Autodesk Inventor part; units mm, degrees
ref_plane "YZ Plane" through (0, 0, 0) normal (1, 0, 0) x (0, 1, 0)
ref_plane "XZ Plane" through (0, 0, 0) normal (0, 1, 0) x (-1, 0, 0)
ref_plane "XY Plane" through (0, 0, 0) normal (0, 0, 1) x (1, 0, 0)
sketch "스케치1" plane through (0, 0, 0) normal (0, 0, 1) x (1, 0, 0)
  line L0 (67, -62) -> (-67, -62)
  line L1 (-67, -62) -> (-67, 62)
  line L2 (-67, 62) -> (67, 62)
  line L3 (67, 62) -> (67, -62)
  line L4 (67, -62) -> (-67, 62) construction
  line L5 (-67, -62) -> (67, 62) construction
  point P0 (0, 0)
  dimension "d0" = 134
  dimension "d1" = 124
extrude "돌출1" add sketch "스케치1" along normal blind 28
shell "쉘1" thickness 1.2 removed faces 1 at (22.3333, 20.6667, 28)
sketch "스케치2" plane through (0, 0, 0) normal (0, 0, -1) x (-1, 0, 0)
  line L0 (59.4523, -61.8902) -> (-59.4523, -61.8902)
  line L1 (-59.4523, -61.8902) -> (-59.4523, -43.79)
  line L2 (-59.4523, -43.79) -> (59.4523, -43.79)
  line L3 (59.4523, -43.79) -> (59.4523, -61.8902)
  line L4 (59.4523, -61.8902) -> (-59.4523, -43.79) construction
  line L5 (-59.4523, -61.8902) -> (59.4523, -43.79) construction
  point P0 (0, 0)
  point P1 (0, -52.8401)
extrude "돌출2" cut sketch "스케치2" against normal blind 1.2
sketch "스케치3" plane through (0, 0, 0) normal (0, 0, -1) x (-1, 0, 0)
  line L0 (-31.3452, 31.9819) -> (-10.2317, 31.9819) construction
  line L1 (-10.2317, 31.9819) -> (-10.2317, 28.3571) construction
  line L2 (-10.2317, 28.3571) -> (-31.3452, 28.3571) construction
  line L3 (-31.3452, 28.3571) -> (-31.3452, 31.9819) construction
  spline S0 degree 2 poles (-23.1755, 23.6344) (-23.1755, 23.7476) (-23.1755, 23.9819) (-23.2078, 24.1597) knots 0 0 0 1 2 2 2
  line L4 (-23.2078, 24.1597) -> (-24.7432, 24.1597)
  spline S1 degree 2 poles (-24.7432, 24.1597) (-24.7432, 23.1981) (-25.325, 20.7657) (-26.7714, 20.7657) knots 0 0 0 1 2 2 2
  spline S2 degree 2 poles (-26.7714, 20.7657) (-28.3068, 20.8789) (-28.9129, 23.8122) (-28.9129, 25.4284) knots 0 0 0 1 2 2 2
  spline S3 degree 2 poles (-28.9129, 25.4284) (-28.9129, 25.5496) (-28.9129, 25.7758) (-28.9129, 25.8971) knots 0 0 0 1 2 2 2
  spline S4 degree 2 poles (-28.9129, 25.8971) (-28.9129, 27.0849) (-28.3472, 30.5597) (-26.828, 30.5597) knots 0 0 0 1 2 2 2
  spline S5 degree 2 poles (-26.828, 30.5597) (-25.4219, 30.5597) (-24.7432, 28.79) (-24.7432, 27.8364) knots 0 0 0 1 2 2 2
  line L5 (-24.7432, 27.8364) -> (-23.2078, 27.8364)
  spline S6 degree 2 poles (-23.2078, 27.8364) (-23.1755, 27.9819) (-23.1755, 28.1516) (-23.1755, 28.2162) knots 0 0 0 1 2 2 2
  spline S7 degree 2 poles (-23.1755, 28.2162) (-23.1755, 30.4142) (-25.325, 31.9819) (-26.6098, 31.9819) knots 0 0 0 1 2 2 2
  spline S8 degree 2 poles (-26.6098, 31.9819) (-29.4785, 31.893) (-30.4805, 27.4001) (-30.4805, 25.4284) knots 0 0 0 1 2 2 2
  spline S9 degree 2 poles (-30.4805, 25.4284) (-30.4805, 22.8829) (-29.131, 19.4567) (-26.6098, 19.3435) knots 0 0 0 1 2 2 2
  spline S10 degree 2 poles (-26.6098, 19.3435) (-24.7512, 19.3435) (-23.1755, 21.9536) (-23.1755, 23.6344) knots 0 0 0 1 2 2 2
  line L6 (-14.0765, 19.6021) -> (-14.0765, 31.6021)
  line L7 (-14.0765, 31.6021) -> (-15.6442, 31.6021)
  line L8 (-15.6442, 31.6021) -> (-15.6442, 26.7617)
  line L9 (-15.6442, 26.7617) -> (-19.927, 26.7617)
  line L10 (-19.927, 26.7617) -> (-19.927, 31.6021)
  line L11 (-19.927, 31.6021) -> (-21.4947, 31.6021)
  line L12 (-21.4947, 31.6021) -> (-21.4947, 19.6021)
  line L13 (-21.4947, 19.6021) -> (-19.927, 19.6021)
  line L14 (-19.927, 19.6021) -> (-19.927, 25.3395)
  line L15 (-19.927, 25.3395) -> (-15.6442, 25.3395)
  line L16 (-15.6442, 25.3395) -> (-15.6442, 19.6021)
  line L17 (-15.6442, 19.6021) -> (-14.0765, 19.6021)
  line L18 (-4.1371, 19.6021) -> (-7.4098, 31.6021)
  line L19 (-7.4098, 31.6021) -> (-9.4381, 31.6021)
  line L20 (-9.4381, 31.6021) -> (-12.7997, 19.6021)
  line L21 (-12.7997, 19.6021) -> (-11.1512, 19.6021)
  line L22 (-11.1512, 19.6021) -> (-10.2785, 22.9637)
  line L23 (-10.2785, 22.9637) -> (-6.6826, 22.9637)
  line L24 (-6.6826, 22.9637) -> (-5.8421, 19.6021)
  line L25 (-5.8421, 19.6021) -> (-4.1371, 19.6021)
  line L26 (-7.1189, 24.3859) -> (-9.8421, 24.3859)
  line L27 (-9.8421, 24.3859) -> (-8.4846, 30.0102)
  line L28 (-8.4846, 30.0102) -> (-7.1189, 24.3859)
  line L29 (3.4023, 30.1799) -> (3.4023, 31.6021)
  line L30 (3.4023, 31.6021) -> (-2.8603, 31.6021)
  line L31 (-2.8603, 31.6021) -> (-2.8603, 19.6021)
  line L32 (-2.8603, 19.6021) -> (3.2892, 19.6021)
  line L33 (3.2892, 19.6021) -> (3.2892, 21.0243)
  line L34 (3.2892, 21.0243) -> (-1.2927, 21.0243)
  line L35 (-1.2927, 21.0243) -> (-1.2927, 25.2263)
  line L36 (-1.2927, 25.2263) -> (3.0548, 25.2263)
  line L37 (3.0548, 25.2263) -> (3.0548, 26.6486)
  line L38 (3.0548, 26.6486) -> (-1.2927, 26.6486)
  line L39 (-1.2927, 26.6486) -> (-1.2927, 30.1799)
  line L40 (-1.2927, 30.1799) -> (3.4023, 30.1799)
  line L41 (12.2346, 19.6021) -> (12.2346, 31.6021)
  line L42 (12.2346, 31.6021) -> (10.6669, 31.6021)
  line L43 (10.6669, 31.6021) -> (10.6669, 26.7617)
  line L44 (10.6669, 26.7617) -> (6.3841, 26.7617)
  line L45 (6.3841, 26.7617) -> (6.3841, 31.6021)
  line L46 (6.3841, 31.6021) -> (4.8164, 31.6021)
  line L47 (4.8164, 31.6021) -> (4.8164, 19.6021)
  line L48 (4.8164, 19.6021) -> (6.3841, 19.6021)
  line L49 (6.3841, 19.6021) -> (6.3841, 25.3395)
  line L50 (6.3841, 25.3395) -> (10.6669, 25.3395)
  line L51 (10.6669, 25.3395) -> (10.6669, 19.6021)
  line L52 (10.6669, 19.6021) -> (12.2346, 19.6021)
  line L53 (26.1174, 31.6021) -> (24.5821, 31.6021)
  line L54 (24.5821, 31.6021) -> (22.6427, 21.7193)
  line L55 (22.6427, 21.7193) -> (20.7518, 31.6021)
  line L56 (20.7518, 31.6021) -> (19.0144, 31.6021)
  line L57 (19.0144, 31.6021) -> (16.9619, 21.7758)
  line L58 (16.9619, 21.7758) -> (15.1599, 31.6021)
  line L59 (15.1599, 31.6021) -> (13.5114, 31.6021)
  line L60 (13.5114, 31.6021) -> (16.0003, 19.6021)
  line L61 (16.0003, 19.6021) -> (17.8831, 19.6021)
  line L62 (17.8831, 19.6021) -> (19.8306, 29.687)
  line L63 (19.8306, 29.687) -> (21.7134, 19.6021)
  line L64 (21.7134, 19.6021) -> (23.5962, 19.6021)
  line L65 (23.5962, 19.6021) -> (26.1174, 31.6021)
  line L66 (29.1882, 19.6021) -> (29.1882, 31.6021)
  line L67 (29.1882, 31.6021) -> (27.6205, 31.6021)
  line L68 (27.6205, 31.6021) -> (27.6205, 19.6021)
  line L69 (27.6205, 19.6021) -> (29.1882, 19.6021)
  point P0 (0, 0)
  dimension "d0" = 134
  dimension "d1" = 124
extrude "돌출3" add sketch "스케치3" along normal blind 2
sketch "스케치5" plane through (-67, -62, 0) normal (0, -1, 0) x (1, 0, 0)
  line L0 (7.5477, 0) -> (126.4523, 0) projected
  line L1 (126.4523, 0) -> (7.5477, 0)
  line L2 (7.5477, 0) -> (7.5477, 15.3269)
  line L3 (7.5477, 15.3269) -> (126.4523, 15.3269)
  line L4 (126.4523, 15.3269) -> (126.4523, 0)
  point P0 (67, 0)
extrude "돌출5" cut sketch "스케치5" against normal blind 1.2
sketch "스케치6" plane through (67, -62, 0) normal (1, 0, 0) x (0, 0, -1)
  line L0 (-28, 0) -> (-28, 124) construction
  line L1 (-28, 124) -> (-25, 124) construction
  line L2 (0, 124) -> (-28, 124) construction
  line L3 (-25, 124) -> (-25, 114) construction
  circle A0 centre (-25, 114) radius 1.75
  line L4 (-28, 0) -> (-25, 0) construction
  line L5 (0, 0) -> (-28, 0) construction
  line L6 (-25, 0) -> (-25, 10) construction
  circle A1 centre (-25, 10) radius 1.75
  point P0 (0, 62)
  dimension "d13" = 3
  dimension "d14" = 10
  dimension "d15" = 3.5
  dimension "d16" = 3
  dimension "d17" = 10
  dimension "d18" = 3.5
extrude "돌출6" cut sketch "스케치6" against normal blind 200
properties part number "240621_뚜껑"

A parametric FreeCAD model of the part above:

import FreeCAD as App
import Part
import Sketcher


def faces_at(feature, points):
    """Names of the faces that lie closest to the given points."""
    faces = feature.Shape.Faces
    near = lambda p: min(range(len(faces)), key=lambda i: faces[i].distToShape(Part.Vertex(*p))[0])
    return sorted({f"Face{near(p) + 1}" for p in points})

doc = App.newDocument("Part")
body = doc.addObject("PartDesign::Body", "Body")

# Sketch on XY plane
sketch1 = body.newObject("Sketcher::SketchObject", "Sketch")
sketch1.AttachmentSupport = (doc.getObject("XY_Plane"), [""])
sketch1.MapMode = "FlatFace"
sketch1.addGeometry(Part.LineSegment(App.Vector(-67, -62, 0), App.Vector(67, -62, 0)), False)
sketch1.addGeometry(Part.LineSegment(App.Vector(67, -62, 0), App.Vector(67, 62, 0)), False)
sketch1.addGeometry(Part.LineSegment(App.Vector(67, 62, 0), App.Vector(-67, 62, 0)), False)
sketch1.addGeometry(Part.LineSegment(App.Vector(-67, 62, 0), App.Vector(-67, -62, 0)), False)
sketch1.addConstraint(Sketcher.Constraint("Coincident", 0, 2, 1, 1))
sketch1.addConstraint(Sketcher.Constraint("Coincident", 1, 2, 2, 1))
sketch1.addConstraint(Sketcher.Constraint("Coincident", 2, 2, 3, 1))
sketch1.addConstraint(Sketcher.Constraint("Coincident", 3, 2, 0, 1))
sketch1.addConstraint(Sketcher.Constraint("Horizontal", 0))
sketch1.addConstraint(Sketcher.Constraint("Vertical", 1))
sketch1.addConstraint(Sketcher.Constraint("Horizontal", 2))
sketch1.addConstraint(Sketcher.Constraint("Vertical", 3))
sketch1.addConstraint(Sketcher.Constraint("Symmetric", 0, 2, 2, 2, -1, 1))
sketch1.addConstraint(Sketcher.Constraint("DistanceX", 0, 1, 0, 2, 134.0))
sketch1.addConstraint(Sketcher.Constraint("DistanceY", 1, 1, 1, 2, 124.0))
pad1 = body.newObject("PartDesign::Pad", "Pad")
pad1.Profile = sketch1
pad1.Length = 28
doc.recompute()

thickness = body.newObject("PartDesign::Thickness", "Thickness")
thickness.Base = (pad1, faces_at(pad1, [(22.333, 20.667, 28)]))
thickness.Value = 1.2
thickness.Reversed = True
thickness.Join = "Intersection"

# Sketch on XY plane
sketch2 = body.newObject("Sketcher::SketchObject", "Sketch001")
sketch2.AttachmentSupport = (doc.getObject("XY_Plane"), [""])
sketch2.MapMode = "FlatFace"
sketch2.addGeometry(Part.LineSegment(App.Vector(59.4523, -61.8902, 0), App.Vector(-59.4523, -61.8902, 0)), False)
sketch2.addGeometry(Part.LineSegment(App.Vector(-59.4523, -61.8902, 0), App.Vector(-59.4523, -43.79, 0)), False)
sketch2.addGeometry(Part.LineSegment(App.Vector(-59.4523, -43.79, 0), App.Vector(59.4523, -43.79, 0)), False)
sketch2.addGeometry(Part.LineSegment(App.Vector(59.4523, -43.79, 0), App.Vector(59.4523, -61.8902, 0)), False)
sketch2.addConstraint(Sketcher.Constraint("Coincident", 0, 2, 1, 1))
sketch2.addConstraint(Sketcher.Constraint("Coincident", 1, 2, 2, 1))
sketch2.addConstraint(Sketcher.Constraint("Coincident", 2, 2, 3, 1))
sketch2.addConstraint(Sketcher.Constraint("Coincident", 3, 2, 0, 1))
sketch2.addConstraint(Sketcher.Constraint("Horizontal", 0))
sketch2.addConstraint(Sketcher.Constraint("Vertical", 1))
sketch2.addConstraint(Sketcher.Constraint("Horizontal", 2))
sketch2.addConstraint(Sketcher.Constraint("Vertical", 3))
sketch2.addConstraint(Sketcher.Constraint("DistanceY", 1, 2, -1, 1, 43.79))
sketch2.addConstraint(Sketcher.Constraint("DistanceX", 0, 2, 0, 1, 118.9046))
sketch2.addConstraint(Sketcher.Constraint("DistanceY", 1, 1, 1, 2, 18.1002))
sketch2.addConstraint(Sketcher.Constraint("DistanceX", 0, 2, -1, 1, 59.4523))
pocket1 = body.newObject("PartDesign::Pocket", "Pocket")
pocket1.Profile = sketch2
pocket1.Length = 1.2
pocket1.Reversed = True

# Sketch on XY plane
sketch3 = body.newObject("Sketcher::SketchObject", "Sketch002")
sketch3.AttachmentSupport = (doc.getObject("XY_Plane"), [""])
sketch3.MapMode = "FlatFace"
sketch3.addGeometry(Part.BSplineCurve([App.Vector(26.6098, 19.3435, 0), App.Vector(24.7512, 19.3435, 0), App.Vector(23.1755, 21.9536, 0), App.Vector(23.1755, 23.6344, 0)], [3, 1, 3], [0, 1, 2], False, 2, [1, 1, 1, 1], False), False)
sketch3.addGeometry(Part.BSplineCurve([App.Vector(23.1755, 23.6344, 0), App.Vector(23.1755, 23.7476, 0), App.Vector(23.1755, 23.9819, 0), App.Vector(23.2078, 24.1597, 0)], [3, 1, 3], [0, 1, 2], False, 2, [1, 1, 1, 1], False), False)
sketch3.addGeometry(Part.LineSegment(App.Vector(23.2078, 24.1597, 0), App.Vector(24.7432, 24.1597, 0)), False)
sketch3.addGeometry(Part.BSplineCurve([App.Vector(24.7432, 24.1597, 0), App.Vector(24.7432, 23.1981, 0), App.Vector(25.325, 20.7657, 0), App.Vector(26.7714, 20.7657, 0)], [3, 1, 3], [0, 1, 2], False, 2, [1, 1, 1, 1], False), False)
sketch3.addGeometry(Part.BSplineCurve([App.Vector(26.7714, 20.7657, 0), App.Vector(28.3068, 20.8789, 0), App.Vector(28.9129, 23.8122, 0), App.Vector(28.9129, 25.4284, 0)], [3, 1, 3], [0, 1, 2], False, 2, [1, 1, 1, 1], False), False)
sketch3.addGeometry(Part.BSplineCurve([App.Vector(28.9129, 25.4284, 0), App.Vector(28.9129, 25.5496, 0), App.Vector(28.9129, 25.7758, 0), App.Vector(28.9129, 25.8971, 0)], [3, 1, 3], [0, 1, 2], False, 2, [1, 1, 1, 1], False), False)
sketch3.addGeometry(Part.BSplineCurve([App.Vector(28.9129, 25.8971, 0), App.Vector(28.9129, 27.0849, 0), App.Vector(28.3472, 30.5597, 0), App.Vector(26.828, 30.5597, 0)], [3, 1, 3], [0, 1, 2], False, 2, [1, 1, 1, 1], False), False)
sketch3.addGeometry(Part.BSplineCurve([App.Vector(26.828, 30.5597, 0), App.Vector(25.4219, 30.5597, 0), App.Vector(24.7432, 28.79, 0), App.Vector(24.7432, 27.8364, 0)], [3, 1, 3], [0, 1, 2], False, 2, [1, 1, 1, 1], False), False)
sketch3.addGeometry(Part.LineSegment(App.Vector(24.7432, 27.8364, 0), App.Vector(23.2078, 27.8364, 0)), False)
sketch3.addGeometry(Part.BSplineCurve([App.Vector(23.2078, 27.8364, 0), App.Vector(23.1755, 27.9819, 0), App.Vector(23.1755, 28.1516, 0), App.Vector(23.1755, 28.2162, 0)], [3, 1, 3], [0, 1, 2], False, 2, [1, 1, 1, 1], False), False)
sketch3.addGeometry(Part.BSplineCurve([App.Vector(23.1755, 28.2162, 0), App.Vector(23.1755, 30.4142, 0), App.Vector(25.325, 31.9819, 0), App.Vector(26.6098, 31.9819, 0)], [3, 1, 3], [0, 1, 2], False, 2, [1, 1, 1, 1], False), False)
sketch3.addGeometry(Part.BSplineCurve([App.Vector(26.6098, 31.9819, 0), App.Vector(29.4785, 31.893, 0), App.Vector(30.4805, 27.4001, 0), App.Vector(30.4805, 25.4284, 0)], [3, 1, 3], [0, 1, 2], False, 2, [1, 1, 1, 1], False), False)
sketch3.addGeometry(Part.BSplineCurve([App.Vector(30.4805, 25.4284, 0), App.Vector(30.4805, 22.8829, 0), App.Vector(29.131, 19.4567, 0), App.Vector(26.6098, 19.3435, 0)], [3, 1, 3], [0, 1, 2], False, 2, [1, 1, 1, 1], False), False)
sketch3.addGeometry(Part.LineSegment(App.Vector(15.6442, 19.6021, 0), App.Vector(14.0765, 19.6021, 0)), False)
sketch3.addGeometry(Part.LineSegment(App.Vector(14.0765, 19.6021, 0), App.Vector(14.0765, 31.6021, 0)), False)
sketch3.addGeometry(Part.LineSegment(App.Vector(14.0765, 31.6021, 0), App.Vector(15.6442, 31.6021, 0)), False)
sketch3.addGeometry(Part.LineSegment(App.Vector(15.6442, 31.6021, 0), App.Vector(15.6442, 26.7617, 0)), False)
sketch3.addGeometry(Part.LineSegment(App.Vector(15.6442, 26.7617, 0), App.Vector(19.927, 26.7617, 0)), False)
sketch3.addGeometry(Part.LineSegment(App.Vector(19.927, 26.7617, 0), App.Vector(19.927, 31.6021, 0)), False)
sketch3.addGeometry(Part.LineSegment(App.Vector(19.927, 31.6021, 0), App.Vector(21.4947, 31.6021, 0)), False)
sketch3.addGeometry(Part.LineSegment(App.Vector(21.4947, 31.6021, 0), App.Vector(21.4947, 19.6021, 0)), False)
sketch3.addGeometry(Part.LineSegment(App.Vector(21.4947, 19.6021, 0), App.Vector(19.927, 19.6021, 0)), False)
sketch3.addGeometry(Part.LineSegment(App.Vector(19.927, 19.6021, 0), App.Vector(19.927, 25.3395, 0)), False)
sketch3.addGeometry(Part.LineSegment(App.Vector(19.927, 25.3395, 0), App.Vector(15.6442, 25.3395, 0)), False)
sketch3.addGeometry(Part.LineSegment(App.Vector(15.6442, 25.3395, 0), App.Vector(15.6442, 19.6021, 0)), False)
sketch3.addGeometry(Part.LineSegment(App.Vector(5.8421, 19.6021, 0), App.Vector(4.1371, 19.6021, 0)), False)
sketch3.addGeometry(Part.LineSegment(App.Vector(4.1371, 19.6021, 0), App.Vector(7.4098, 31.6021, 0)), False)
sketch3.addGeometry(Part.LineSegment(App.Vector(7.4098, 31.6021, 0), App.Vector(9.4381, 31.6021, 0)), False)
sketch3.addGeometry(Part.LineSegment(App.Vector(9.4381, 31.6021, 0), App.Vector(12.7997, 19.6021, 0)), False)
sketch3.addGeometry(Part.LineSegment(App.Vector(12.7997, 19.6021, 0), App.Vector(11.1512, 19.6021, 0)), False)
sketch3.addGeometry(Part.LineSegment(App.Vector(11.1512, 19.6021, 0), App.Vector(10.2785, 22.9637, 0)), False)
sketch3.addGeometry(Part.LineSegment(App.Vector(10.2785, 22.9637, 0), App.Vector(6.6826, 22.9637, 0)), False)
sketch3.addGeometry(Part.LineSegment(App.Vector(6.6826, 22.9637, 0), App.Vector(5.8421, 19.6021, 0)), False)
sketch3.addGeometry(Part.LineSegment(App.Vector(8.4846, 30.0102, 0), App.Vector(7.1189, 24.3859, 0)), False)
sketch3.addGeometry(Part.LineSegment(App.Vector(7.1189, 24.3859, 0), App.Vector(9.8421, 24.3859, 0)), False)
sketch3.addGeometry(Part.LineSegment(App.Vector(9.8421, 24.3859, 0), App.Vector(8.4846, 30.0102, 0)), False)
sketch3.addGeometry(Part.LineSegment(App.Vector(1.2927, 30.1799, 0), App.Vector(-3.4023, 30.1799, 0)), False)
sketch3.addGeometry(Part.LineSegment(App.Vector(-3.4023, 30.1799, 0), App.Vector(-3.4023, 31.6021, 0)), False)
sketch3.addGeometry(Part.LineSegment(App.Vector(-3.4023, 31.6021, 0), App.Vector(2.8603, 31.6021, 0)), False)
sketch3.addGeometry(Part.LineSegment(App.Vector(2.8603, 31.6021, 0), App.Vector(2.8603, 19.6021, 0)), False)
sketch3.addGeometry(Part.LineSegment(App.Vector(2.8603, 19.6021, 0), App.Vector(-3.2892, 19.6021, 0)), False)
sketch3.addGeometry(Part.LineSegment(App.Vector(-3.2892, 19.6021, 0), App.Vector(-3.2892, 21.0243, 0)), False)
sketch3.addGeometry(Part.LineSegment(App.Vector(-3.2892, 21.0243, 0), App.Vector(1.2927, 21.0243, 0)), False)
sketch3.addGeometry(Part.LineSegment(App.Vector(1.2927, 21.0243, 0), App.Vector(1.2927, 25.2263, 0)), False)
sketch3.addGeometry(Part.LineSegment(App.Vector(1.2927, 25.2263, 0), App.Vector(-3.0548, 25.2263, 0)), False)
sketch3.addGeometry(Part.LineSegment(App.Vector(-3.0548, 25.2263, 0), App.Vector(-3.0548, 26.6486, 0)), False)
sketch3.addGeometry(Part.LineSegment(App.Vector(-3.0548, 26.6486, 0), App.Vector(1.2927, 26.6486, 0)), False)
sketch3.addGeometry(Part.LineSegment(App.Vector(1.2927, 26.6486, 0), App.Vector(1.2927, 30.1799, 0)), False)
sketch3.addGeometry(Part.LineSegment(App.Vector(-10.6669, 19.6021, 0), App.Vector(-12.2346, 19.6021, 0)), False)
sketch3.addGeometry(Part.LineSegment(App.Vector(-12.2346, 19.6021, 0), App.Vector(-12.2346, 31.6021, 0)), False)
sketch3.addGeometry(Part.LineSegment(App.Vector(-12.2346, 31.6021, 0), App.Vector(-10.6669, 31.6021, 0)), False)
sketch3.addGeometry(Part.LineSegment(App.Vector(-10.6669, 31.6021, 0), App.Vector(-10.6669, 26.7617, 0)), False)
sketch3.addGeometry(Part.LineSegment(App.Vector(-10.6669, 26.7617, 0), App.Vector(-6.3841, 26.7617, 0)), False)
sketch3.addGeometry(Part.LineSegment(App.Vector(-6.3841, 26.7617, 0), App.Vector(-6.3841, 31.6021, 0)), False)
sketch3.addGeometry(Part.LineSegment(App.Vector(-6.3841, 31.6021, 0), App.Vector(-4.8164, 31.6021, 0)), False)
sketch3.addGeometry(Part.LineSegment(App.Vector(-4.8164, 31.6021, 0), App.Vector(-4.8164, 19.6021, 0)), False)
sketch3.addGeometry(Part.LineSegment(App.Vector(-4.8164, 19.6021, 0), App.Vector(-6.3841, 19.6021, 0)), False)
sketch3.addGeometry(Part.LineSegment(App.Vector(-6.3841, 19.6021, 0), App.Vector(-6.3841, 25.3395, 0)), False)
sketch3.addGeometry(Part.LineSegment(App.Vector(-6.3841, 25.3395, 0), App.Vector(-10.6669, 25.3395, 0)), False)
sketch3.addGeometry(Part.LineSegment(App.Vector(-10.6669, 25.3395, 0), App.Vector(-10.6669, 19.6021, 0)), False)
sketch3.addGeometry(Part.LineSegment(App.Vector(-23.5962, 19.6021, 0), App.Vector(-26.1174, 31.6021, 0)), False)
sketch3.addGeometry(Part.LineSegment(App.Vector(-26.1174, 31.6021, 0), App.Vector(-24.5821, 31.6021, 0)), False)
sketch3.addGeometry(Part.LineSegment(App.Vector(-24.5821, 31.6021, 0), App.Vector(-22.6427, 21.7193, 0)), False)
sketch3.addGeometry(Part.LineSegment(App.Vector(-22.6427, 21.7193, 0), App.Vector(-20.7518, 31.6021, 0)), False)
sketch3.addGeometry(Part.LineSegment(App.Vector(-20.7518, 31.6021, 0), App.Vector(-19.0144, 31.6021, 0)), False)
sketch3.addGeometry(Part.LineSegment(App.Vector(-19.0144, 31.6021, 0), App.Vector(-16.9619, 21.7758, 0)), False)
sketch3.addGeometry(Part.LineSegment(App.Vector(-16.9619, 21.7758, 0), App.Vector(-15.1599, 31.6021, 0)), False)
sketch3.addGeometry(Part.LineSegment(App.Vector(-15.1599, 31.6021, 0), App.Vector(-13.5114, 31.6021, 0)), False)
sketch3.addGeometry(Part.LineSegment(App.Vector(-13.5114, 31.6021, 0), App.Vector(-16.0003, 19.6021, 0)), False)
sketch3.addGeometry(Part.LineSegment(App.Vector(-16.0003, 19.6021, 0), App.Vector(-17.8831, 19.6021, 0)), False)
sketch3.addGeometry(Part.LineSegment(App.Vector(-17.8831, 19.6021, 0), App.Vector(-19.8306, 29.687, 0)), False)
sketch3.addGeometry(Part.LineSegment(App.Vector(-19.8306, 29.687, 0), App.Vector(-21.7134, 19.6021, 0)), False)
sketch3.addGeometry(Part.LineSegment(App.Vector(-21.7134, 19.6021, 0), App.Vector(-23.5962, 19.6021, 0)), False)
sketch3.addGeometry(Part.LineSegment(App.Vector(-27.6205, 19.6021, 0), App.Vector(-29.1882, 19.6021, 0)), False)
sketch3.addGeometry(Part.LineSegment(App.Vector(-29.1882, 19.6021, 0), App.Vector(-29.1882, 31.6021, 0)), False)
sketch3.addGeometry(Part.LineSegment(App.Vector(-29.1882, 31.6021, 0), App.Vector(-27.6205, 31.6021, 0)), False)
sketch3.addGeometry(Part.LineSegment(App.Vector(-27.6205, 31.6021, 0), App.Vector(-27.6205, 19.6021, 0)), False)
sketch3.addConstraint(Sketcher.Constraint("Block", 0))
sketch3.addConstraint(Sketcher.Constraint("Block", 1))
sketch3.addConstraint(Sketcher.Constraint("Block", 3))
sketch3.addConstraint(Sketcher.Constraint("Block", 4))
sketch3.addConstraint(Sketcher.Constraint("Block", 5))
sketch3.addConstraint(Sketcher.Constraint("Block", 6))
sketch3.addConstraint(Sketcher.Constraint("Block", 7))
sketch3.addConstraint(Sketcher.Constraint("Block", 9))
sketch3.addConstraint(Sketcher.Constraint("Block", 10))
sketch3.addConstraint(Sketcher.Constraint("Block", 11))
sketch3.addConstraint(Sketcher.Constraint("Block", 12))
sketch3.addConstraint(Sketcher.Constraint("Coincident", 1, 2, 2, 1))
sketch3.addConstraint(Sketcher.Constraint("Coincident", 2, 2, 3, 1))
sketch3.addConstraint(Sketcher.Constraint("Coincident", 7, 2, 8, 1))
sketch3.addConstraint(Sketcher.Constraint("Coincident", 8, 2, 9, 1))
sketch3.addConstraint(Sketcher.Constraint("Coincident", 13, 2, 14, 1))
sketch3.addConstraint(Sketcher.Constraint("Coincident", 14, 2, 15, 1))
sketch3.addConstraint(Sketcher.Constraint("Coincident", 15, 2, 16, 1))
sketch3.addConstraint(Sketcher.Constraint("Coincident", 16, 2, 17, 1))
sketch3.addConstraint(Sketcher.Constraint("Coincident", 17, 2, 18, 1))
sketch3.addConstraint(Sketcher.Constraint("Coincident", 18, 2, 19, 1))
sketch3.addConstraint(Sketcher.Constraint("Coincident", 19, 2, 20, 1))
sketch3.addConstraint(Sketcher.Constraint("Coincident", 20, 2, 21, 1))
sketch3.addConstraint(Sketcher.Constraint("Coincident", 21, 2, 22, 1))
sketch3.addConstraint(Sketcher.Constraint("Coincident", 22, 2, 23, 1))
sketch3.addConstraint(Sketcher.Constraint("Coincident", 23, 2, 24, 1))
sketch3.addConstraint(Sketcher.Constraint("Coincident", 24, 2, 13, 1))
sketch3.addConstraint(Sketcher.Constraint("Coincident", 25, 2, 26, 1))
sketch3.addConstraint(Sketcher.Constraint("Coincident", 26, 2, 27, 1))
sketch3.addConstraint(Sketcher.Constraint("Coincident", 27, 2, 28, 1))
sketch3.addConstraint(Sketcher.Constraint("Coincident", 28, 2, 29, 1))
sketch3.addConstraint(Sketcher.Constraint("Coincident", 29, 2, 30, 1))
sketch3.addConstraint(Sketcher.Constraint("Coincident", 30, 2, 31, 1))
sketch3.addConstraint(Sketcher.Constraint("Coincident", 31, 2, 32, 1))
sketch3.addConstraint(Sketcher.Constraint("Coincident", 32, 2, 25, 1))
sketch3.addConstraint(Sketcher.Constraint("Coincident", 33, 2, 34, 1))
sketch3.addConstraint(Sketcher.Constraint("Coincident", 34, 2, 35, 1))
sketch3.addConstraint(Sketcher.Constraint("Coincident", 35, 2, 33, 1))
sketch3.addConstraint(Sketcher.Constraint("Coincident", 36, 2, 37, 1))
sketch3.addConstraint(Sketcher.Constraint("Coincident", 37, 2, 38, 1))
sketch3.addConstraint(Sketcher.Constraint("Coincident", 38, 2, 39, 1))
sketch3.addConstraint(Sketcher.Constraint("Coincident", 39, 2, 40, 1))
sketch3.addConstraint(Sketcher.Constraint("Coincident", 40, 2, 41, 1))
sketch3.addConstraint(Sketcher.Constraint("Coincident", 41, 2, 42, 1))
sketch3.addConstraint(Sketcher.Constraint("Coincident", 42, 2, 43, 1))
sketch3.addConstraint(Sketcher.Constraint("Coincident", 43, 2, 44, 1))
sketch3.addConstraint(Sketcher.Constraint("Coincident", 44, 2, 45, 1))
sketch3.addConstraint(Sketcher.Constraint("Coincident", 45, 2, 46, 1))
sketch3.addConstraint(Sketcher.Constraint("Coincident", 46, 2, 47, 1))
sketch3.addConstraint(Sketcher.Constraint("Coincident", 47, 2, 36, 1))
sketch3.addConstraint(Sketcher.Constraint("Coincident", 48, 2, 49, 1))
sketch3.addConstraint(Sketcher.Constraint("Coincident", 49, 2, 50, 1))
sketch3.addConstraint(Sketcher.Constraint("Coincident", 50, 2, 51, 1))
sketch3.addConstraint(Sketcher.Constraint("Coincident", 51, 2, 52, 1))
sketch3.addConstraint(Sketcher.Constraint("Coincident", 52, 2, 53, 1))
sketch3.addConstraint(Sketcher.Constraint("Coincident", 53, 2, 54, 1))
sketch3.addConstraint(Sketcher.Constraint("Coincident", 54, 2, 55, 1))
sketch3.addConstraint(Sketcher.Constraint("Coincident", 55, 2, 56, 1))
sketch3.addConstraint(Sketcher.Constraint("Coincident", 56, 2, 57, 1))
sketch3.addConstraint(Sketcher.Constraint("Coincident", 57, 2, 58, 1))
sketch3.addConstraint(Sketcher.Constraint("Coincident", 58, 2, 59, 1))
sketch3.addConstraint(Sketcher.Constraint("Coincident", 59, 2, 48, 1))
sketch3.addConstraint(Sketcher.Constraint("Coincident", 60, 2, 61, 1))
sketch3.addConstraint(Sketcher.Constraint("Coincident", 61, 2, 62, 1))
sketch3.addConstraint(Sketcher.Constraint("Coincident", 62, 2, 63, 1))
sketch3.addConstraint(Sketcher.Constraint("Coincident", 63, 2, 64, 1))
sketch3.addConstraint(Sketcher.Constraint("Coincident", 64, 2, 65, 1))
sketch3.addConstraint(Sketcher.Constraint("Coincident", 65, 2, 66, 1))
sketch3.addConstraint(Sketcher.Constraint("Coincident", 66, 2, 67, 1))
sketch3.addConstraint(Sketcher.Constraint("Coincident", 67, 2, 68, 1))
sketch3.addConstraint(Sketcher.Constraint("Coincident", 68, 2, 69, 1))
sketch3.addConstraint(Sketcher.Constraint("Coincident", 69, 2, 70, 1))
sketch3.addConstraint(Sketcher.Constraint("Coincident", 70, 2, 71, 1))
sketch3.addConstraint(Sketcher.Constraint("Coincident", 71, 2, 72, 1))
sketch3.addConstraint(Sketcher.Constraint("Coincident", 72, 2, 60, 1))
sketch3.addConstraint(Sketcher.Constraint("Coincident", 73, 2, 74, 1))
sketch3.addConstraint(Sketcher.Constraint("Coincident", 74, 2, 75, 1))
sketch3.addConstraint(Sketcher.Constraint("Coincident", 75, 2, 76, 1))
sketch3.addConstraint(Sketcher.Constraint("Coincident", 76, 2, 73, 1))
sketch3.addConstraint(Sketcher.Constraint("Horizontal", 13))
sketch3.addConstraint(Sketcher.Constraint("Vertical", 14))
sketch3.addConstraint(Sketcher.Constraint("Horizontal", 15))
sketch3.addConstraint(Sketcher.Constraint("Vertical", 16))
sketch3.addConstraint(Sketcher.Constraint("Horizontal", 17))
sketch3.addConstraint(Sketcher.Constraint("Vertical", 18))
sketch3.addConstraint(Sketcher.Constraint("Horizontal", 19))
sketch3.addConstraint(Sketcher.Constraint("Vertical", 20))
sketch3.addConstraint(Sketcher.Constraint("Horizontal", 21))
sketch3.addConstraint(Sketcher.Constraint("Vertical", 22))
sketch3.addConstraint(Sketcher.Constraint("Horizontal", 23))
sketch3.addConstraint(Sketcher.Constraint("Vertical", 24))
sketch3.addConstraint(Sketcher.Constraint("Horizontal", 25))
sketch3.addConstraint(Sketcher.Constraint("Horizontal", 27))
sketch3.addConstraint(Sketcher.Constraint("Horizontal", 29))
sketch3.addConstraint(Sketcher.Constraint("Horizontal", 31))
sketch3.addConstraint(Sketcher.Constraint("Horizontal", 34))
sketch3.addConstraint(Sketcher.Constraint("Horizontal", 36))
sketch3.addConstraint(Sketcher.Constraint("Vertical", 37))
sketch3.addConstraint(Sketcher.Constraint("Horizontal", 38))
sketch3.addConstraint(Sketcher.Constraint("Vertical", 39))
sketch3.addConstraint(Sketcher.Constraint("Horizontal", 40))
sketch3.addConstraint(Sketcher.Constraint("Vertical", 41))
sketch3.addConstraint(Sketcher.Constraint("Horizontal", 42))
sketch3.addConstraint(Sketcher.Constraint("Vertical", 43))
sketch3.addConstraint(Sketcher.Constraint("Horizontal", 44))
sketch3.addConstraint(Sketcher.Constraint("Vertical", 45))
sketch3.addConstraint(Sketcher.Constraint("Horizontal", 46))
sketch3.addConstraint(Sketcher.Constraint("Vertical", 47))
sketch3.addConstraint(Sketcher.Constraint("Horizontal", 48))
sketch3.addConstraint(Sketcher.Constraint("Vertical", 49))
sketch3.addConstraint(Sketcher.Constraint("Horizontal", 50))
sketch3.addConstraint(Sketcher.Constraint("Vertical", 51))
sketch3.addConstraint(Sketcher.Constraint("Horizontal", 52))
sketch3.addConstraint(Sketcher.Constraint("Vertical", 53))
sketch3.addConstraint(Sketcher.Constraint("Horizontal", 54))
sketch3.addConstraint(Sketcher.Constraint("Vertical", 55))
sketch3.addConstraint(Sketcher.Constraint("Horizontal", 56))
sketch3.addConstraint(Sketcher.Constraint("Vertical", 57))
sketch3.addConstraint(Sketcher.Constraint("Horizontal", 58))
sketch3.addConstraint(Sketcher.Constraint("Vertical", 59))
sketch3.addConstraint(Sketcher.Constraint("Horizontal", 61))
sketch3.addConstraint(Sketcher.Constraint("Horizontal", 64))
sketch3.addConstraint(Sketcher.Constraint("Horizontal", 67))
sketch3.addConstraint(Sketcher.Constraint("Horizontal", 69))
sketch3.addConstraint(Sketcher.Constraint("Horizontal", 72))
sketch3.addConstraint(Sketcher.Constraint("Horizontal", 73))
sketch3.addConstraint(Sketcher.Constraint("Vertical", 74))
sketch3.addConstraint(Sketcher.Constraint("Horizontal", 75))
sketch3.addConstraint(Sketcher.Constraint("Vertical", 76))
sketch3.addConstraint(Sketcher.Constraint("DistanceY", 14, 1, 14, 2, 12.0))
sketch3.addConstraint(Sketcher.Constraint("DistanceY", 20, 2, 20, 1, 12.0))
sketch3.addConstraint(Sketcher.Constraint("DistanceY", 39, 2, 39, 1, 12.0))
sketch3.addConstraint(Sketcher.Constraint("DistanceY", 49, 1, 49, 2, 12.0))
sketch3.addConstraint(Sketcher.Constraint("DistanceY", 55, 2, 55, 1, 12.0))
sketch3.addConstraint(Sketcher.Constraint("DistanceY", 74, 1, 74, 2, 12.0))
sketch3.addConstraint(Sketcher.Constraint("DistanceX", 25, 2, 25, 1, 1.705))
sketch3.addConstraint(Sketcher.Constraint("DistanceX", 31, 2, 31, 1, 3.596))
sketch3.addConstraint(Sketcher.Constraint("DistanceX", 36, 2, 36, 1, 4.695))
sketch3.addConstraint(Sketcher.Constraint("DistanceX", 42, 1, 42, 2, 4.582))
sketch3.addConstraint(Sketcher.Constraint("DistanceY", 43, 1, 43, 2, 4.202))
sketch3.addConstraint(Sketcher.Constraint("DistanceY", -1, 1, 36, 2, 30.18))
sketch3.addConstraint(Sketcher.Constraint("DistanceX", 66, 2, -1, 1, 15.16))
sketch3.addConstraint(Sketcher.Constraint("Distance", 28, 12.462))
sketch3.addConstraint(Sketcher.Constraint("Distance", 30, 3.473))
sketch3.addConstraint(Sketcher.Constraint("Distance", 32, 3.465))
sketch3.addConstraint(Sketcher.Constraint("Distance", 60, 12.262))
sketch3.addConstraint(Sketcher.Constraint("Distance", 63, 10.062))
sketch3.addConstraint(Sketcher.Constraint("DistanceX", 13, 2, 13, 1, 1.5677))
sketch3.addConstraint(Sketcher.Constraint("DistanceX", 15, 1, 15, 2, 1.5677))
sketch3.addConstraint(Sketcher.Constraint("DistanceX", 17, 1, 17, 2, 4.2828))
sketch3.addConstraint(Sketcher.Constraint("DistanceX", 19, 1, 19, 2, 1.5677))
sketch3.addConstraint(Sketcher.Constraint("DistanceX", 21, 2, 21, 1, 1.5677))
sketch3.addConstraint(Sketcher.Constraint("DistanceX", 27, 1, 27, 2, 2.0283))
sketch3.addConstraint(Sketcher.Constraint("DistanceX", 29, 2, 29, 1, 1.6485))
sketch3.addConstraint(Sketcher.Constraint("DistanceX", 34, 1, 34, 2, 2.7232))
sketch3.addConstraint(Sketcher.Constraint("DistanceX", 38, 1, 38, 2, 6.2626))
sketch3.addConstraint(Sketcher.Constraint("DistanceX", 40, 2, 40, 1, 6.1495))
sketch3.addConstraint(Sketcher.Constraint("DistanceX", 44, 2, 44, 1, 4.3475))
sketch3.addConstraint(Sketcher.Constraint("DistanceX", 48, 2, 48, 1, 1.5677))
sketch3.addConstraint(Sketcher.Constraint("DistanceX", 50, 1, 50, 2, 1.5677))
sketch3.addConstraint(Sketcher.Constraint("DistanceX", 52, 1, 52, 2, 4.2828))
sketch3.addConstraint(Sketcher.Constraint("DistanceX", 54, 1, 54, 2, 1.5677))
sketch3.addConstraint(Sketcher.Constraint("DistanceX", 56, 2, 56, 1, 1.5677))
sketch3.addConstraint(Sketcher.Constraint("DistanceX", 61, 1, 61, 2, 1.5353))
sketch3.addConstraint(Sketcher.Constraint("DistanceX", 64, 1, 64, 2, 1.7374))
sketch3.addConstraint(Sketcher.Constraint("DistanceX", 67, 1, 67, 2, 1.6485))
sketch3.addConstraint(Sketcher.Constraint("DistanceX", 69, 2, 69, 1, 1.8828))
sketch3.addConstraint(Sketcher.Constraint("DistanceX", 72, 2, 72, 1, 1.8828))
sketch3.addConstraint(Sketcher.Constraint("DistanceX", 73, 2, 73, 1, 1.5677))
sketch3.addConstraint(Sketcher.Constraint("DistanceY", 16, 2, 16, 1, 4.8404))
sketch3.addConstraint(Sketcher.Constraint("DistanceY", 18, 1, 18, 2, 4.8404))
sketch3.addConstraint(Sketcher.Constraint("DistanceY", 22, 1, 22, 2, 5.7374))
sketch3.addConstraint(Sketcher.Constraint("DistanceY", 37, 1, 37, 2, 1.4222))
sketch3.addConstraint(Sketcher.Constraint("DistanceY", 41, 1, 41, 2, 1.4222))
sketch3.addConstraint(Sketcher.Constraint("DistanceY", 45, 1, 45, 2, 1.4223))
sketch3.addConstraint(Sketcher.Constraint("DistanceY", 51, 2, 51, 1, 4.8404))
sketch3.addConstraint(Sketcher.Constraint("DistanceY", 53, 1, 53, 2, 4.8404))
sketch3.addConstraint(Sketcher.Constraint("DistanceY", 57, 1, 57, 2, 5.7374))
sketch3.addConstraint(Sketcher.Constraint("DistanceY", -1, 1, 13, 2, 19.602))
sketch3.addConstraint(Sketcher.Constraint("DistanceX", -1, 1, 17, 2, 19.927))
sketch3.addConstraint(Sketcher.Constraint("DistanceX", -1, 1, 25, 2, 4.137))
sketch3.addConstraint(Sketcher.Constraint("DistanceY", -1, 1, 25, 2, 19.602))
sketch3.addConstraint(Sketcher.Constraint("DistanceY", -1, 1, 26, 2, 31.602))
sketch3.addConstraint(Sketcher.Constraint("DistanceX", -1, 1, 27, 2, 9.438))
sketch3.addConstraint(Sketcher.Constraint("DistanceY", -1, 1, 28, 2, 19.602))
sketch3.addConstraint(Sketcher.Constraint("DistanceX", -1, 1, 33, 2, 7.119))
sketch3.addConstraint(Sketcher.Constraint("DistanceY", -1, 1, 33, 2, 24.386))
sketch3.addConstraint(Sketcher.Constraint("DistanceY", -1, 1, 48, 2, 19.602))
sketch3.addConstraint(Sketcher.Constraint("DistanceX", 50, 2, -1, 1, 10.667))
sketch3.addConstraint(Sketcher.Constraint("DistanceY", -1, 1, 60, 2, 31.602))
sketch3.addConstraint(Sketcher.Constraint("DistanceX", 61, 2, -1, 1, 24.582))
sketch3.addConstraint(Sketcher.Constraint("DistanceY", -1, 1, 63, 2, 31.602))
sketch3.addConstraint(Sketcher.Constraint("DistanceX", 65, 2, -1, 1, 16.962))
sketch3.addConstraint(Sketcher.Constraint("DistanceY", -1, 1, 66, 2, 31.602))
sketch3.addConstraint(Sketcher.Constraint("DistanceY", -1, 1, 68, 2, 19.602))
sketch3.addConstraint(Sketcher.Constraint("DistanceX", 69, 2, -1, 1, 17.883))
sketch3.addConstraint(Sketcher.Constraint("DistanceY", -1, 1, 70, 2, 29.687))
sketch3.addConstraint(Sketcher.Constraint("DistanceY", -1, 1, 71, 2, 19.602))
sketch3.addConstraint(Sketcher.Constraint("DistanceY", -1, 1, 73, 2, 19.602))
sketch3.addConstraint(Sketcher.Constraint("Distance", 33, 5.7877))
sketch3.addConstraint(Sketcher.Constraint("Distance", 35, 5.7858))
sketch3.addConstraint(Sketcher.Constraint("Distance", 62, 10.0713))
sketch3.addConstraint(Sketcher.Constraint("Distance", 65, 10.0384))
sketch3.addConstraint(Sketcher.Constraint("Distance", 66, 9.9902))
sketch3.addConstraint(Sketcher.Constraint("Distance", 70, 10.2712))
sketch3.addConstraint(Sketcher.Constraint("DistanceX", 36, 2, -1, 1, 3.4023))
sketch3.addConstraint(Sketcher.Constraint("DistanceX", 73, 2, -1, 1, 29.1882))
pad2 = body.newObject("PartDesign::Pad", "Pad001")
pad2.Profile = sketch3
pad2.Length = 2
pad2.Reversed = True

# Sketch on XZ plane
sketch4 = body.newObject("Sketcher::SketchObject", "Sketch003")
sketch4.AttachmentSupport = (doc.getObject("XZ_Plane"), [""])
sketch4.MapMode = "FlatFace"
sketch4.AttachmentOffset = App.Placement(App.Vector(0, 0, 62), App.Rotation())
sketch4.addGeometry(Part.LineSegment(App.Vector(-59.4523, 15.3269, 0), App.Vector(-59.4523, 0, 0)), False)
sketch4.addGeometry(Part.LineSegment(App.Vector(-59.4523, 0, 0), App.Vector(59.4523, 0, 0)), False)
sketch4.addGeometry(Part.LineSegment(App.Vector(59.4523, 0, 0), App.Vector(59.4523, 15.3269, 0)), False)
sketch4.addGeometry(Part.LineSegment(App.Vector(59.4523, 15.3269, 0), App.Vector(-59.4523, 15.3269, 0)), False)
sketch4.addConstraint(Sketcher.Constraint("Coincident", 0, 2, 1, 1))
sketch4.addConstraint(Sketcher.Constraint("Coincident", 1, 2, 2, 1))
sketch4.addConstraint(Sketcher.Constraint("Coincident", 2, 2, 3, 1))
sketch4.addConstraint(Sketcher.Constraint("Coincident", 3, 2, 0, 1))
sketch4.addConstraint(Sketcher.Constraint("Vertical", 0))
sketch4.addConstraint(Sketcher.Constraint("Horizontal", 1))
sketch4.addConstraint(Sketcher.Constraint("Vertical", 2))
sketch4.addConstraint(Sketcher.Constraint("Horizontal", 3))
sketch4.addConstraint(Sketcher.Constraint("Symmetric", 0, 2, 1, 2, -1, 1))
sketch4.addConstraint(Sketcher.Constraint("DistanceY", 0, 2, 0, 1, 15.327))
sketch4.addConstraint(Sketcher.Constraint("DistanceX", 1, 1, 1, 2, 118.9046))
pocket2 = body.newObject("PartDesign::Pocket", "Pocket001")
pocket2.Profile = sketch4
pocket2.Length = 1.2

# Sketch on YZ plane
sketch5 = body.newObject("Sketcher::SketchObject", "Sketch004")
sketch5.AttachmentSupport = (doc.getObject("YZ_Plane"), [""])
sketch5.MapMode = "FlatFace"
sketch5.AttachmentOffset = App.Placement(App.Vector(0, 0, 67), App.Rotation())
sketch5.addGeometry(Part.Circle(App.Vector(52, 25, 0), App.Vector(0, 0, 1), 1.75), False)
sketch5.addGeometry(Part.Circle(App.Vector(-52, 25, 0), App.Vector(0, 0, 1), 1.75), False)
sketch5.addConstraint(Sketcher.Constraint("Equal", 0, 1))
sketch5.addConstraint(Sketcher.Constraint("Symmetric", 0, 3, 1, 3, -2))
sketch5.addConstraint(Sketcher.Constraint("Diameter", 0, 3.5))
sketch5.addConstraint(Sketcher.Constraint("DistanceX", -1, 1, 0, 3, 52.0))
sketch5.addConstraint(Sketcher.Constraint("DistanceY", -1, 1, 0, 3, 25.0))
pocket3 = body.newObject("PartDesign::Pocket", "Pocket002")
pocket3.Profile = sketch5
pocket3.Length = 200

doc.recompute()
